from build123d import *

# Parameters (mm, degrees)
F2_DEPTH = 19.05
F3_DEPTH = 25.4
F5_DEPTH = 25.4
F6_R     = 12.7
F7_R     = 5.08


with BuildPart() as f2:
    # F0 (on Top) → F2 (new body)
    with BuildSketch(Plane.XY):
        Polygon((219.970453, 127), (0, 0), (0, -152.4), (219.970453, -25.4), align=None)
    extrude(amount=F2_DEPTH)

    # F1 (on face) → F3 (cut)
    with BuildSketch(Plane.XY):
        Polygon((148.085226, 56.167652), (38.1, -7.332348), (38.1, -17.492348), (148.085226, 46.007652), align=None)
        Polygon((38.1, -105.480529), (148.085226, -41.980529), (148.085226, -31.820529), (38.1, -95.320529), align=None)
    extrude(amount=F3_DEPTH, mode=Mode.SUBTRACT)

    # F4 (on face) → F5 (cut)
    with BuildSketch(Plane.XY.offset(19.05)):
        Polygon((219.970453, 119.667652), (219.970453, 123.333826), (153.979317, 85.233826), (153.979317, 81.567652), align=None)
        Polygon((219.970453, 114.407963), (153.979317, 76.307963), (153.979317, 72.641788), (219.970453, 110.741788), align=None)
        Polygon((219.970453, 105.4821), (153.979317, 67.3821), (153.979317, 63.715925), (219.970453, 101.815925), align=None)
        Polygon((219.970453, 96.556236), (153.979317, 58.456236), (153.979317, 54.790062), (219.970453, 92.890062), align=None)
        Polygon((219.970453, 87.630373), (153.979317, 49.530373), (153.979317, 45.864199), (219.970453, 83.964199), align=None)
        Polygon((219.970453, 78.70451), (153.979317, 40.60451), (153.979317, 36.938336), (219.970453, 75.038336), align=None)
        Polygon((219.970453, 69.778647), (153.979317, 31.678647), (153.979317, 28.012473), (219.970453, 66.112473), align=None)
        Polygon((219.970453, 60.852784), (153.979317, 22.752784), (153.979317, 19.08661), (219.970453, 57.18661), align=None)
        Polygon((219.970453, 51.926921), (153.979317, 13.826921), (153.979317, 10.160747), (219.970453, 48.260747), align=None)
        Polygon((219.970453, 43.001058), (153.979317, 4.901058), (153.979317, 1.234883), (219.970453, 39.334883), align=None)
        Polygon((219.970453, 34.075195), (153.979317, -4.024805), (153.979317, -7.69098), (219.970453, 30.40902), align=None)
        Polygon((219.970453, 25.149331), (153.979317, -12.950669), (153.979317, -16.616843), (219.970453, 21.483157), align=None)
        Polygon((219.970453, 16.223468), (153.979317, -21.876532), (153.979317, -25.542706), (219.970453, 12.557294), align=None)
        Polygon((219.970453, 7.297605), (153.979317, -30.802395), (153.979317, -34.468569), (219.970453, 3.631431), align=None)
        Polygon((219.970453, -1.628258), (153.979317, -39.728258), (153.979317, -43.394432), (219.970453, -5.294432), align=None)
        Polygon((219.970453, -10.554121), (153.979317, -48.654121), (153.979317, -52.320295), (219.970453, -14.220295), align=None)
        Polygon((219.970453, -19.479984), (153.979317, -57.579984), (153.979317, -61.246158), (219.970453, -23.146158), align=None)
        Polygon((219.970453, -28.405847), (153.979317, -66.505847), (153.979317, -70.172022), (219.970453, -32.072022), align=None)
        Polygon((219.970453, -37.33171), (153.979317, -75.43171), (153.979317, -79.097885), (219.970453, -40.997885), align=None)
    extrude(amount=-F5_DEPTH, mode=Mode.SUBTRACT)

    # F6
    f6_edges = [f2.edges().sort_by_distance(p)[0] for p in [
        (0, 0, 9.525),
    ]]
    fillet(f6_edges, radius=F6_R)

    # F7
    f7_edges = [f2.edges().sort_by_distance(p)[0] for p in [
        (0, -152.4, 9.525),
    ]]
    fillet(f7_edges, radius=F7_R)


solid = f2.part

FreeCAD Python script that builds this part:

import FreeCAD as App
import Part
import Sketcher

V = App.Vector
Q = App.Units.Quantity


def edges_at(feature, points):
    """Names of the edges that pass closest to the given points."""
    edges = feature.Shape.Edges
    near = lambda p: min(range(len(edges)), key=lambda i: edges[i].distToShape(Part.Vertex(*p))[0])
    return sorted({f"Edge{near(p) + 1}" for p in points})


def add_polygon(sketch, points):
    """Adds a closed chain of lines whose ends are joined by coincident constraints."""
    first, n = sketch.GeometryCount, len(points)
    for a, b in zip(points, points[1:] + points[:1]):
        sketch.addGeometry(Part.LineSegment(App.Vector(*a, 0), App.Vector(*b, 0)), False)
    for i in range(n):
        sketch.addConstraint(Sketcher.Constraint("Coincident", first + i, 2, first + (i + 1) % n, 1))

doc = App.newDocument("Part")
body = doc.addObject("PartDesign::Body", "Body")

sketch1 = body.newObject("Sketcher::SketchObject", "Sketch")
sketch1.AttachmentSupport = (doc.getObject("XY_Plane"), [""])
sketch1.MapMode = "FlatFace"
add_polygon(sketch1, [(220, 127), (0, 0), (0, -152), (220, -25)])
sketch1.addConstraint([
    Sketcher.Constraint("Vertical", 1),
    Sketcher.Constraint("Vertical", 3),
    Sketcher.Constraint("Coincident", 0, 2, -1, 1),
    Sketcher.Constraint("Parallel", 0, 2),
    Sketcher.Constraint("DistanceY", 1, 2, 1, 1, Q("6 in")),
    Sketcher.Constraint("Distance", 0, Q("10 in")),
    Sketcher.Constraint("DistanceY", 2, 2, -1, 1, Q("1 in")),
])
pad1 = body.newObject("PartDesign::Pad", "Pad")
pad1.Profile = sketch1
pad1.Length = Q("0.75 in")

sketch2 = body.newObject("Sketcher::SketchObject", "Sketch001")
sketch2.AttachmentSupport = (doc.getObject("XY_Plane"), [""])
sketch2.MapMode = "FlatFace"
add_polygon(sketch2, [(148, 56), (38, -7), (38, -17), (148, 46)])
add_polygon(sketch2, [(38, -105), (148, -42), (148, -32), (38, -95)])
sketch2.addConstraint([
    Sketcher.Constraint("Vertical", 1),
    Sketcher.Constraint("Vertical", 3),
    Sketcher.Constraint("Vertical", 5),
    Sketcher.Constraint("Vertical", 7),
    Sketcher.Constraint("Parallel", 0, 2),
    Sketcher.Constraint("Parallel", 2, 4),
    Sketcher.Constraint("Parallel", 4, 6),
    Sketcher.Constraint("Vertical", 3, 2, 4, 2),
    Sketcher.Constraint("Vertical", 1, 2, 6, 2),
    Sketcher.Constraint("Equal", 3, 5),
    Sketcher.Constraint("Distance", 0, Q("5 in")),
    Sketcher.Constraint("DistanceY", 1, 2, 1, 1, Q("0.4 in")),
    Sketcher.Constraint("Angle", 0, Q("-150 deg")),
    Sketcher.Constraint("DistanceX", -1, 1, 0, 2, Q("1.5 in")),
    Sketcher.Constraint("DistanceY", 1, 2, -1, 1, Q("17.492348 mm")),
    Sketcher.Constraint("DistanceY", 4, 2, -1, 1, Q("41.980529 mm")),
])
pocket1 = body.newObject("PartDesign::Pocket", "Pocket")
pocket1.Profile = sketch2
pocket1.Length = Q("1 in")
pocket1.Reversed = True

sketch3 = body.newObject("Sketcher::SketchObject", "Sketch002")
sketch3.AttachmentSupport = (doc.getObject("XY_Plane"), [""])
sketch3.MapMode = "FlatFace"
sketch3.AttachmentOffset = App.Placement(V(0, 0, 0.75 * 25.4), App.Rotation())
add_polygon(sketch3, [(220, 119.7), (220, 123.3), (154, 85.2), (154, 81.6)])
add_polygon(sketch3, [(220, 114.4), (154, 76.3), (154, 72.6), (220, 110.7)])
add_polygon(sketch3, [(220, 105.5), (154, 67.4), (154, 63.7), (220, 101.8)])
add_polygon(sketch3, [(220, 96.6), (154, 58.5), (154, 54.8), (220, 92.9)])
add_polygon(sketch3, [(220, 87.6), (154, 49.5), (154, 45.9), (220, 84)])
add_polygon(sketch3, [(220, 78.7), (154, 40.6), (154, 36.9), (220, 75)])
add_polygon(sketch3, [(220, 69.8), (154, 31.7), (154, 28), (220, 66.1)])
add_polygon(sketch3, [(220, 60.9), (154, 22.8), (154, 19.1), (220, 57.2)])
add_polygon(sketch3, [(220, 51.9), (154, 13.8), (154, 10.2), (220, 48.3)])
add_polygon(sketch3, [(220, 43), (154, 4.9), (154, 1.2), (220, 39.3)])
add_polygon(sketch3, [(220, 34.1), (154, -4), (154, -7.7), (220, 30.4)])
add_polygon(sketch3, [(220, 25.1), (154, -13), (154, -16.6), (220, 21.5)])
add_polygon(sketch3, [(220, 16.2), (154, -21.9), (154, -25.5), (220, 12.6)])
add_polygon(sketch3, [(220, 7.3), (154, -30.8), (154, -34.5), (220, 3.6)])
add_polygon(sketch3, [(220, -1.6), (154, -39.7), (154, -43.4), (220, -5.3)])
add_polygon(sketch3, [(220, -10.6), (154, -48.7), (154, -52.3), (220, -14.2)])
add_polygon(sketch3, [(220, -19.5), (154, -57.6), (154, -61.2), (220, -23.1)])
add_polygon(sketch3, [(220, -28.4), (154, -66.5), (154, -70.2), (220, -32.1)])
add_polygon(sketch3, [(220, -37.3), (154, -75.4), (154, -79.1), (220, -41)])
sketch3.addConstraint([
    Sketcher.Constraint("Vertical", 0),
    Sketcher.Constraint("Vertical", 2),
    Sketcher.Constraint("Vertical", 5),
    Sketcher.Constraint("Vertical", 7),
    Sketcher.Constraint("Vertical", 9),
    Sketcher.Constraint("Vertical", 11),
    Sketcher.Constraint("Vertical", 13),
    Sketcher.Constraint("Vertical", 15),
    Sketcher.Constraint("Vertical", 17),
    Sketcher.Constraint("Vertical", 19),
    Sketcher.Constraint("Vertical", 21),
    Sketcher.Constraint("Vertical", 23),
    Sketcher.Constraint("Vertical", 25),
    Sketcher.Constraint("Vertical", 27),
    Sketcher.Constraint("Vertical", 29),
    Sketcher.Constraint("Vertical", 31),
    Sketcher.Constraint("Vertical", 33),
    Sketcher.Constraint("Vertical", 35),
    Sketcher.Constraint("Vertical", 37),
    Sketcher.Constraint("Vertical", 39),
    Sketcher.Constraint("Vertical", 41),
    Sketcher.Constraint("Vertical", 43),
    Sketcher.Constraint("Vertical", 45),
    Sketcher.Constraint("Vertical", 47),
    Sketcher.Constraint("Vertical", 49),
    Sketcher.Constraint("Vertical", 51),
    Sketcher.Constraint("Vertical", 53),
    Sketcher.Constraint("Vertical", 55),
    Sketcher.Constraint("Vertical", 57),
    Sketcher.Constraint("Vertical", 59),
    Sketcher.Constraint("Vertical", 61),
    Sketcher.Constraint("Vertical", 63),
    Sketcher.Constraint("Vertical", 65),
    Sketcher.Constraint("Vertical", 67),
    Sketcher.Constraint("Vertical", 69),
    Sketcher.Constraint("Vertical", 71),
    Sketcher.Constraint("Vertical", 73),
    Sketcher.Constraint("Vertical", 75),
    Sketcher.Constraint("Parallel", 1, 3),
    Sketcher.Constraint("Parallel", 3, 4),
    Sketcher.Constraint("Parallel", 4, 6),
    Sketcher.Constraint("Parallel", 6, 8),
    Sketcher.Constraint("Parallel", 8, 10),
    Sketcher.Constraint("Parallel", 10, 12),
    Sketcher.Constraint("Parallel", 12, 14),
    Sketcher.Constraint("Parallel", 14, 16),
    Sketcher.Constraint("Parallel", 16, 18),
    Sketcher.Constraint("Parallel", 18, 20),
    Sketcher.Constraint("Parallel", 20, 22),
    Sketcher.Constraint("Parallel", 22, 24),
    Sketcher.Constraint("Parallel", 24, 26),
    Sketcher.Constraint("Parallel", 26, 28),
    Sketcher.Constraint("Parallel", 28, 30),
    Sketcher.Constraint("Parallel", 30, 32),
    Sketcher.Constraint("Parallel", 32, 34),
    Sketcher.Constraint("Parallel", 34, 36),
    Sketcher.Constraint("Parallel", 36, 38),
    Sketcher.Constraint("Parallel", 38, 40),
    Sketcher.Constraint("Parallel", 40, 42),
    Sketcher.Constraint("Parallel", 42, 44),
    Sketcher.Constraint("Parallel", 44, 46),
    Sketcher.Constraint("Parallel", 46, 48),
    Sketcher.Constraint("Parallel", 48, 50),
    Sketcher.Constraint("Parallel", 50, 52),
    Sketcher.Constraint("Parallel", 52, 54),
    Sketcher.Constraint("Parallel", 54, 56),
    Sketcher.Constraint("Parallel", 56, 58),
    Sketcher.Constraint("Parallel", 58, 60),
    Sketcher.Constraint("Parallel", 60, 62),
    Sketcher.Constraint("Parallel", 62, 64),
    Sketcher.Constraint("Parallel", 64, 66),
    Sketcher.Constraint("Parallel", 66, 68),
    Sketcher.Constraint("Parallel", 68, 70),
    Sketcher.Constraint("Parallel", 70, 72),
    Sketcher.Constraint("Parallel", 72, 74),
    Sketcher.Constraint("Vertical", 2, 2, 4, 2),
    Sketcher.Constraint("Vertical", 3, 2, 6, 2),
    Sketcher.Constraint("Vertical", 5, 2, 8, 2),
    Sketcher.Constraint("Vertical", 7, 2, 10, 2),
    Sketcher.Constraint("Vertical", 9, 2, 12, 2),
    Sketcher.Constraint("Vertical", 11, 2, 14, 2),
    Sketcher.Constraint("Vertical", 13, 2, 16, 2),
    Sketcher.Constraint("Vertical", 15, 2, 18, 2),
    Sketcher.Constraint("Vertical", 17, 2, 20, 2),
    Sketcher.Constraint("Vertical", 19, 2, 22, 2),
    Sketcher.Constraint("Vertical", 21, 2, 24, 2),
    Sketcher.Constraint("Vertical", 23, 2, 26, 2),
    Sketcher.Constraint("Vertical", 25, 2, 28, 2),
    Sketcher.Constraint("Vertical", 27, 2, 30, 2),
    Sketcher.Constraint("Vertical", 29, 2, 32, 2),
    Sketcher.Constraint("Vertical", 31, 2, 34, 2),
    Sketcher.Constraint("Vertical", 33, 2, 36, 2),
    Sketcher.Constraint("Vertical", 35, 2, 38, 2),
    Sketcher.Constraint("Vertical", 37, 2, 40, 2),
    Sketcher.Constraint("Vertical", 39, 2, 42, 2),
    Sketcher.Constraint("Vertical", 41, 2, 44, 2),
    Sketcher.Constraint("Vertical", 43, 2, 46, 2),
    Sketcher.Constraint("Vertical", 45, 2, 48, 2),
    Sketcher.Constraint("Vertical", 47, 2, 50, 2),
    Sketcher.Constraint("Vertical", 49, 2, 52, 2),
    Sketcher.Constraint("Vertical", 51, 2, 54, 2),
    Sketcher.Constraint("Vertical", 53, 2, 56, 2),
    Sketcher.Constraint("Vertical", 55, 2, 58, 2),
    Sketcher.Constraint("Vertical", 57, 2, 60, 2),
    Sketcher.Constraint("Vertical", 59, 2, 62, 2),
    Sketcher.Constraint("Vertical", 61, 2, 64, 2),
    Sketcher.Constraint("Vertical", 63, 2, 66, 2),
    Sketcher.Constraint("Vertical", 65, 2, 68, 2),
    Sketcher.Constraint("Vertical", 67, 2, 70, 2),
    Sketcher.Constraint("Vertical", 69, 2, 72, 2),
    Sketcher.Constraint("Vertical", 71, 2, 74, 2),
    Sketcher.Constraint("Equal", 2, 5),
    Sketcher.Constraint("Equal", 7, 9),
    Sketcher.Constraint("Equal", 11, 13),
    Sketcher.Constraint("Equal", 15, 17),
    Sketcher.Constraint("Equal", 19, 21),
    Sketcher.Constraint("Equal", 23, 25),
    Sketcher.Constraint("Equal", 27, 29),
    Sketcher.Constraint("Equal", 31, 33),
    Sketcher.Constraint("Equal", 35, 37),
    Sketcher.Constraint("Equal", 39, 41),
    Sketcher.Constraint("Equal", 43, 45),
    Sketcher.Constraint("Equal", 47, 49),
    Sketcher.Constraint("Equal", 51, 53),
    Sketcher.Constraint("Equal", 55, 57),
    Sketcher.Constraint("Equal", 59, 61),
    Sketcher.Constraint("Equal", 63, 65),
    Sketcher.Constraint("Equal", 67, 69),
    Sketcher.Constraint("Equal", 71, 73),
    Sketcher.Constraint("Distance", 1, Q("3 in")),
    Sketcher.Constraint("Angle", 1, Q("-150 deg")),
    Sketcher.Constraint("DistanceY", -1, 1, 8, 2, Q("67.3821 mm")),
    Sketcher.Constraint("DistanceY", -1, 1, 17, 2, Q("45.864199 mm")),
    Sketcher.Constraint("DistanceY", 0, 1, 0, 2, Q("3.666174 mm")),
    Sketcher.Constraint("DistanceY", -1, 1, 2, 2, Q("81.567652 mm")),
    Sketcher.Constraint("DistanceY", -1, 1, 5, 2, Q("72.641788 mm")),
    Sketcher.Constraint("DistanceY", -1, 1, 14, 2, Q("92.890062 mm")),
    Sketcher.Constraint("DistanceY", -1, 1, 20, 2, Q("40.60451 mm")),
    Sketcher.Constraint("DistanceY", -1, 1, 29, 2, Q("19.08661 mm")),
    Sketcher.Constraint("DistanceY", -1, 1, 32, 2, Q("13.826921 mm")),
    Sketcher.Constraint("DistanceY", 41, 2, -1, 1, Q("7.69098 mm")),
    Sketcher.Constraint("DistanceY", 44, 2, -1, 1, Q("12.950669 mm")),
    Sketcher.Constraint("DistanceY", -1, 1, 51, 2, Q("16.223468 mm")),
    Sketcher.Constraint("DistanceY", 53, 2, -1, 1, Q("34.468569 mm")),
    Sketcher.Constraint("DistanceY", 58, 2, -1, 1, Q("5.294432 mm")),
    Sketcher.Constraint("DistanceY", 60, 2, -1, 1, Q("48.654121 mm")),
    Sketcher.Constraint("DistanceY", 66, 2, -1, 1, Q("23.146158 mm")),
    Sketcher.Constraint("DistanceY", 69, 2, -1, 1, Q("70.172022 mm")),
    Sketcher.Constraint("DistanceY", 72, 2, -1, 1, Q("75.43171 mm")),
    Sketcher.Constraint("DistanceX", -1, 1, 0, 2, Q("219.970453 mm")),
    Sketcher.Constraint("DistanceY", -1, 1, 24, 2, Q("31.678647 mm")),
    Sketcher.Constraint("DistanceY", -1, 1, 36, 2, Q("4.901058 mm")),
])
pocket2 = body.newObject("PartDesign::Pocket", "Pocket001")
pocket2.Profile = sketch3
pocket2.Length = Q("1 in")
doc.recompute()

fillet = body.newObject("PartDesign::Fillet", "Fillet")
fillet.Base = (pocket2, edges_at(pocket2, [(0, 0, 9.525)]))
fillet.Radius = Q("0.5 in")
doc.recompute()

fillet2 = body.newObject("PartDesign::Fillet", "Fillet001")
fillet2.Base = (fillet, edges_at(fillet, [(0, -152.4, 9.525)]))
fillet2.Radius = Q("0.2 in")

doc.recompute()
